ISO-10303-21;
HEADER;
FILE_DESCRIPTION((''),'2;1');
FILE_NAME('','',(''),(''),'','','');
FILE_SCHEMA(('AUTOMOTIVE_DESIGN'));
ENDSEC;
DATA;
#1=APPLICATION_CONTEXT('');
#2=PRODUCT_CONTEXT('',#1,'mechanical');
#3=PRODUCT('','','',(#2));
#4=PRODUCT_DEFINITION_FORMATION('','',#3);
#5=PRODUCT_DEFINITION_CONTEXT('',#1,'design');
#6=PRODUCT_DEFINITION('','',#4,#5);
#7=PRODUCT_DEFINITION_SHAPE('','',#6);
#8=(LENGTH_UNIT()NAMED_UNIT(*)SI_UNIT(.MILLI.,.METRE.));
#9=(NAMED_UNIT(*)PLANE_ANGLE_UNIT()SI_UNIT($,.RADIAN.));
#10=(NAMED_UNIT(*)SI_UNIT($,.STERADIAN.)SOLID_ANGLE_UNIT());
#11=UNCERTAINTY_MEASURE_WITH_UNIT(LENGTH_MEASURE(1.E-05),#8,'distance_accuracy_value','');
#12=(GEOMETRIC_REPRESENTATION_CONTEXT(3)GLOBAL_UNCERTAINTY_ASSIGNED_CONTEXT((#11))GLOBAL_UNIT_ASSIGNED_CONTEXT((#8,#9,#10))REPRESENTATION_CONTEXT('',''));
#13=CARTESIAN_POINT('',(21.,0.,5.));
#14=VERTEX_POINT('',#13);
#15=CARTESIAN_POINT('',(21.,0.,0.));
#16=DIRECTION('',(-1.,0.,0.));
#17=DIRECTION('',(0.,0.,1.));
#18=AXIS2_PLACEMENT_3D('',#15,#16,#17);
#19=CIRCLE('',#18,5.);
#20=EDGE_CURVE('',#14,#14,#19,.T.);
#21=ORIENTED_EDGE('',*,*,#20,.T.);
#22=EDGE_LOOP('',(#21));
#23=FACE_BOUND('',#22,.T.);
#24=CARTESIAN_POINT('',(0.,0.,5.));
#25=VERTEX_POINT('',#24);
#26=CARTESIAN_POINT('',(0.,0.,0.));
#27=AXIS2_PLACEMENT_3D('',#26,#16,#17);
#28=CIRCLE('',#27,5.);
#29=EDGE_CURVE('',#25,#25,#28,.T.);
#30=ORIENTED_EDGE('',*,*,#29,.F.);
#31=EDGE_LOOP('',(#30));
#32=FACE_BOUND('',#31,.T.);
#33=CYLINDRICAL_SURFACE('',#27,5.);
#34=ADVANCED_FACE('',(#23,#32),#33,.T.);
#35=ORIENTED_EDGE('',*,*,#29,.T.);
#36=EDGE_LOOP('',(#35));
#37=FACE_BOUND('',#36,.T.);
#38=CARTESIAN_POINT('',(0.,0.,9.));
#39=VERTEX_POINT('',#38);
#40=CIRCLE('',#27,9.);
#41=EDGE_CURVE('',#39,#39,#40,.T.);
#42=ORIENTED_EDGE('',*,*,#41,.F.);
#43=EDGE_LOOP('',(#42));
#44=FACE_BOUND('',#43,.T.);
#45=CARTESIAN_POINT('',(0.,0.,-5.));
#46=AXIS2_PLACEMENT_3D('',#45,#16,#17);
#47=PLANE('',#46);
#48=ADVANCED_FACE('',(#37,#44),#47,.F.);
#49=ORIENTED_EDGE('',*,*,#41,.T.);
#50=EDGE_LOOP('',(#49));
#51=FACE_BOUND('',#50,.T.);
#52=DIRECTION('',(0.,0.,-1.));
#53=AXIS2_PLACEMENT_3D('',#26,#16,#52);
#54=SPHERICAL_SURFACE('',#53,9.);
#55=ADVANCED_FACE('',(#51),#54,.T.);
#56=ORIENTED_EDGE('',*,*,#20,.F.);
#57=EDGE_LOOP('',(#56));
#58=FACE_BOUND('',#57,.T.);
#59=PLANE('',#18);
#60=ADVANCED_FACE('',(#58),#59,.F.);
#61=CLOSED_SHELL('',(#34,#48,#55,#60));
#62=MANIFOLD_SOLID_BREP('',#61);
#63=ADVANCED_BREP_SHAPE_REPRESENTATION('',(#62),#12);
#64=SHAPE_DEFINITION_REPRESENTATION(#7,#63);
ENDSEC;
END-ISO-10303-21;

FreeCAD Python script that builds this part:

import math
import FreeCAD as App
import Part
import Sketcher
from FreeCAD import Vector

doc = App.newDocument("Part")
body = doc.addObject("PartDesign::Body", "Body")

# Sketch on XZ plane
sketch1 = body.newObject("Sketcher::SketchObject", "Sketch")
sketch1.AttachmentSupport = (doc.getObject("XZ_Plane"), [""])
sketch1.MapMode = "FlatFace"
sketch1.addGeometry([
    Part.LineSegment(Vector(21, 0, 0), Vector(21, -5, 0)),  # 0
    Part.LineSegment(Vector(21, -5, 0), Vector(0, -5, 0)),  # 1
    Part.LineSegment(Vector(0, -5, 0), Vector(0, -9, 0)),  # 2
    Part.ArcOfCircle(Part.Circle(Vector(0, 0, 0), Vector(0, 0, 1), 9), math.radians(180), math.radians(270)),  # 3
    Part.LineSegment(Vector(-9, 0, 0), Vector(21, 0, 0)),  # 4
], False)
sketch1.addConstraint([
    Sketcher.Constraint("Coincident", 0, 2, 1, 1),
    Sketcher.Constraint("Coincident", 1, 2, 2, 1),
    Sketcher.Constraint("Coincident", 2, 2, 3, 2),
    Sketcher.Constraint("Coincident", 3, 1, 4, 1),
    Sketcher.Constraint("Coincident", 4, 2, 0, 1),
    Sketcher.Constraint("Vertical", 0),
    Sketcher.Constraint("Horizontal", 1),
    Sketcher.Constraint("Vertical", 2),
    Sketcher.Constraint("Horizontal", 4),
    Sketcher.Constraint("Coincident", 3, 3, -1, 1),
    Sketcher.Constraint("PointOnObject", 1, 2, -2),
    Sketcher.Constraint("PointOnObject", 3, 1, -1),
    Sketcher.Constraint("Radius", 3, 9.0),
    Sketcher.Constraint("DistanceX", 1, 2, 1, 1, 21.0),
    Sketcher.Constraint("DistanceY", 0, 2, 0, 1, 5.0),
])
revolution = body.newObject("PartDesign::Revolution", "Revolution")
revolution.Profile = sketch1
revolution.ReferenceAxis = (sketch1, ["H_Axis"])
revolution.Angle = 360

doc.recompute()
